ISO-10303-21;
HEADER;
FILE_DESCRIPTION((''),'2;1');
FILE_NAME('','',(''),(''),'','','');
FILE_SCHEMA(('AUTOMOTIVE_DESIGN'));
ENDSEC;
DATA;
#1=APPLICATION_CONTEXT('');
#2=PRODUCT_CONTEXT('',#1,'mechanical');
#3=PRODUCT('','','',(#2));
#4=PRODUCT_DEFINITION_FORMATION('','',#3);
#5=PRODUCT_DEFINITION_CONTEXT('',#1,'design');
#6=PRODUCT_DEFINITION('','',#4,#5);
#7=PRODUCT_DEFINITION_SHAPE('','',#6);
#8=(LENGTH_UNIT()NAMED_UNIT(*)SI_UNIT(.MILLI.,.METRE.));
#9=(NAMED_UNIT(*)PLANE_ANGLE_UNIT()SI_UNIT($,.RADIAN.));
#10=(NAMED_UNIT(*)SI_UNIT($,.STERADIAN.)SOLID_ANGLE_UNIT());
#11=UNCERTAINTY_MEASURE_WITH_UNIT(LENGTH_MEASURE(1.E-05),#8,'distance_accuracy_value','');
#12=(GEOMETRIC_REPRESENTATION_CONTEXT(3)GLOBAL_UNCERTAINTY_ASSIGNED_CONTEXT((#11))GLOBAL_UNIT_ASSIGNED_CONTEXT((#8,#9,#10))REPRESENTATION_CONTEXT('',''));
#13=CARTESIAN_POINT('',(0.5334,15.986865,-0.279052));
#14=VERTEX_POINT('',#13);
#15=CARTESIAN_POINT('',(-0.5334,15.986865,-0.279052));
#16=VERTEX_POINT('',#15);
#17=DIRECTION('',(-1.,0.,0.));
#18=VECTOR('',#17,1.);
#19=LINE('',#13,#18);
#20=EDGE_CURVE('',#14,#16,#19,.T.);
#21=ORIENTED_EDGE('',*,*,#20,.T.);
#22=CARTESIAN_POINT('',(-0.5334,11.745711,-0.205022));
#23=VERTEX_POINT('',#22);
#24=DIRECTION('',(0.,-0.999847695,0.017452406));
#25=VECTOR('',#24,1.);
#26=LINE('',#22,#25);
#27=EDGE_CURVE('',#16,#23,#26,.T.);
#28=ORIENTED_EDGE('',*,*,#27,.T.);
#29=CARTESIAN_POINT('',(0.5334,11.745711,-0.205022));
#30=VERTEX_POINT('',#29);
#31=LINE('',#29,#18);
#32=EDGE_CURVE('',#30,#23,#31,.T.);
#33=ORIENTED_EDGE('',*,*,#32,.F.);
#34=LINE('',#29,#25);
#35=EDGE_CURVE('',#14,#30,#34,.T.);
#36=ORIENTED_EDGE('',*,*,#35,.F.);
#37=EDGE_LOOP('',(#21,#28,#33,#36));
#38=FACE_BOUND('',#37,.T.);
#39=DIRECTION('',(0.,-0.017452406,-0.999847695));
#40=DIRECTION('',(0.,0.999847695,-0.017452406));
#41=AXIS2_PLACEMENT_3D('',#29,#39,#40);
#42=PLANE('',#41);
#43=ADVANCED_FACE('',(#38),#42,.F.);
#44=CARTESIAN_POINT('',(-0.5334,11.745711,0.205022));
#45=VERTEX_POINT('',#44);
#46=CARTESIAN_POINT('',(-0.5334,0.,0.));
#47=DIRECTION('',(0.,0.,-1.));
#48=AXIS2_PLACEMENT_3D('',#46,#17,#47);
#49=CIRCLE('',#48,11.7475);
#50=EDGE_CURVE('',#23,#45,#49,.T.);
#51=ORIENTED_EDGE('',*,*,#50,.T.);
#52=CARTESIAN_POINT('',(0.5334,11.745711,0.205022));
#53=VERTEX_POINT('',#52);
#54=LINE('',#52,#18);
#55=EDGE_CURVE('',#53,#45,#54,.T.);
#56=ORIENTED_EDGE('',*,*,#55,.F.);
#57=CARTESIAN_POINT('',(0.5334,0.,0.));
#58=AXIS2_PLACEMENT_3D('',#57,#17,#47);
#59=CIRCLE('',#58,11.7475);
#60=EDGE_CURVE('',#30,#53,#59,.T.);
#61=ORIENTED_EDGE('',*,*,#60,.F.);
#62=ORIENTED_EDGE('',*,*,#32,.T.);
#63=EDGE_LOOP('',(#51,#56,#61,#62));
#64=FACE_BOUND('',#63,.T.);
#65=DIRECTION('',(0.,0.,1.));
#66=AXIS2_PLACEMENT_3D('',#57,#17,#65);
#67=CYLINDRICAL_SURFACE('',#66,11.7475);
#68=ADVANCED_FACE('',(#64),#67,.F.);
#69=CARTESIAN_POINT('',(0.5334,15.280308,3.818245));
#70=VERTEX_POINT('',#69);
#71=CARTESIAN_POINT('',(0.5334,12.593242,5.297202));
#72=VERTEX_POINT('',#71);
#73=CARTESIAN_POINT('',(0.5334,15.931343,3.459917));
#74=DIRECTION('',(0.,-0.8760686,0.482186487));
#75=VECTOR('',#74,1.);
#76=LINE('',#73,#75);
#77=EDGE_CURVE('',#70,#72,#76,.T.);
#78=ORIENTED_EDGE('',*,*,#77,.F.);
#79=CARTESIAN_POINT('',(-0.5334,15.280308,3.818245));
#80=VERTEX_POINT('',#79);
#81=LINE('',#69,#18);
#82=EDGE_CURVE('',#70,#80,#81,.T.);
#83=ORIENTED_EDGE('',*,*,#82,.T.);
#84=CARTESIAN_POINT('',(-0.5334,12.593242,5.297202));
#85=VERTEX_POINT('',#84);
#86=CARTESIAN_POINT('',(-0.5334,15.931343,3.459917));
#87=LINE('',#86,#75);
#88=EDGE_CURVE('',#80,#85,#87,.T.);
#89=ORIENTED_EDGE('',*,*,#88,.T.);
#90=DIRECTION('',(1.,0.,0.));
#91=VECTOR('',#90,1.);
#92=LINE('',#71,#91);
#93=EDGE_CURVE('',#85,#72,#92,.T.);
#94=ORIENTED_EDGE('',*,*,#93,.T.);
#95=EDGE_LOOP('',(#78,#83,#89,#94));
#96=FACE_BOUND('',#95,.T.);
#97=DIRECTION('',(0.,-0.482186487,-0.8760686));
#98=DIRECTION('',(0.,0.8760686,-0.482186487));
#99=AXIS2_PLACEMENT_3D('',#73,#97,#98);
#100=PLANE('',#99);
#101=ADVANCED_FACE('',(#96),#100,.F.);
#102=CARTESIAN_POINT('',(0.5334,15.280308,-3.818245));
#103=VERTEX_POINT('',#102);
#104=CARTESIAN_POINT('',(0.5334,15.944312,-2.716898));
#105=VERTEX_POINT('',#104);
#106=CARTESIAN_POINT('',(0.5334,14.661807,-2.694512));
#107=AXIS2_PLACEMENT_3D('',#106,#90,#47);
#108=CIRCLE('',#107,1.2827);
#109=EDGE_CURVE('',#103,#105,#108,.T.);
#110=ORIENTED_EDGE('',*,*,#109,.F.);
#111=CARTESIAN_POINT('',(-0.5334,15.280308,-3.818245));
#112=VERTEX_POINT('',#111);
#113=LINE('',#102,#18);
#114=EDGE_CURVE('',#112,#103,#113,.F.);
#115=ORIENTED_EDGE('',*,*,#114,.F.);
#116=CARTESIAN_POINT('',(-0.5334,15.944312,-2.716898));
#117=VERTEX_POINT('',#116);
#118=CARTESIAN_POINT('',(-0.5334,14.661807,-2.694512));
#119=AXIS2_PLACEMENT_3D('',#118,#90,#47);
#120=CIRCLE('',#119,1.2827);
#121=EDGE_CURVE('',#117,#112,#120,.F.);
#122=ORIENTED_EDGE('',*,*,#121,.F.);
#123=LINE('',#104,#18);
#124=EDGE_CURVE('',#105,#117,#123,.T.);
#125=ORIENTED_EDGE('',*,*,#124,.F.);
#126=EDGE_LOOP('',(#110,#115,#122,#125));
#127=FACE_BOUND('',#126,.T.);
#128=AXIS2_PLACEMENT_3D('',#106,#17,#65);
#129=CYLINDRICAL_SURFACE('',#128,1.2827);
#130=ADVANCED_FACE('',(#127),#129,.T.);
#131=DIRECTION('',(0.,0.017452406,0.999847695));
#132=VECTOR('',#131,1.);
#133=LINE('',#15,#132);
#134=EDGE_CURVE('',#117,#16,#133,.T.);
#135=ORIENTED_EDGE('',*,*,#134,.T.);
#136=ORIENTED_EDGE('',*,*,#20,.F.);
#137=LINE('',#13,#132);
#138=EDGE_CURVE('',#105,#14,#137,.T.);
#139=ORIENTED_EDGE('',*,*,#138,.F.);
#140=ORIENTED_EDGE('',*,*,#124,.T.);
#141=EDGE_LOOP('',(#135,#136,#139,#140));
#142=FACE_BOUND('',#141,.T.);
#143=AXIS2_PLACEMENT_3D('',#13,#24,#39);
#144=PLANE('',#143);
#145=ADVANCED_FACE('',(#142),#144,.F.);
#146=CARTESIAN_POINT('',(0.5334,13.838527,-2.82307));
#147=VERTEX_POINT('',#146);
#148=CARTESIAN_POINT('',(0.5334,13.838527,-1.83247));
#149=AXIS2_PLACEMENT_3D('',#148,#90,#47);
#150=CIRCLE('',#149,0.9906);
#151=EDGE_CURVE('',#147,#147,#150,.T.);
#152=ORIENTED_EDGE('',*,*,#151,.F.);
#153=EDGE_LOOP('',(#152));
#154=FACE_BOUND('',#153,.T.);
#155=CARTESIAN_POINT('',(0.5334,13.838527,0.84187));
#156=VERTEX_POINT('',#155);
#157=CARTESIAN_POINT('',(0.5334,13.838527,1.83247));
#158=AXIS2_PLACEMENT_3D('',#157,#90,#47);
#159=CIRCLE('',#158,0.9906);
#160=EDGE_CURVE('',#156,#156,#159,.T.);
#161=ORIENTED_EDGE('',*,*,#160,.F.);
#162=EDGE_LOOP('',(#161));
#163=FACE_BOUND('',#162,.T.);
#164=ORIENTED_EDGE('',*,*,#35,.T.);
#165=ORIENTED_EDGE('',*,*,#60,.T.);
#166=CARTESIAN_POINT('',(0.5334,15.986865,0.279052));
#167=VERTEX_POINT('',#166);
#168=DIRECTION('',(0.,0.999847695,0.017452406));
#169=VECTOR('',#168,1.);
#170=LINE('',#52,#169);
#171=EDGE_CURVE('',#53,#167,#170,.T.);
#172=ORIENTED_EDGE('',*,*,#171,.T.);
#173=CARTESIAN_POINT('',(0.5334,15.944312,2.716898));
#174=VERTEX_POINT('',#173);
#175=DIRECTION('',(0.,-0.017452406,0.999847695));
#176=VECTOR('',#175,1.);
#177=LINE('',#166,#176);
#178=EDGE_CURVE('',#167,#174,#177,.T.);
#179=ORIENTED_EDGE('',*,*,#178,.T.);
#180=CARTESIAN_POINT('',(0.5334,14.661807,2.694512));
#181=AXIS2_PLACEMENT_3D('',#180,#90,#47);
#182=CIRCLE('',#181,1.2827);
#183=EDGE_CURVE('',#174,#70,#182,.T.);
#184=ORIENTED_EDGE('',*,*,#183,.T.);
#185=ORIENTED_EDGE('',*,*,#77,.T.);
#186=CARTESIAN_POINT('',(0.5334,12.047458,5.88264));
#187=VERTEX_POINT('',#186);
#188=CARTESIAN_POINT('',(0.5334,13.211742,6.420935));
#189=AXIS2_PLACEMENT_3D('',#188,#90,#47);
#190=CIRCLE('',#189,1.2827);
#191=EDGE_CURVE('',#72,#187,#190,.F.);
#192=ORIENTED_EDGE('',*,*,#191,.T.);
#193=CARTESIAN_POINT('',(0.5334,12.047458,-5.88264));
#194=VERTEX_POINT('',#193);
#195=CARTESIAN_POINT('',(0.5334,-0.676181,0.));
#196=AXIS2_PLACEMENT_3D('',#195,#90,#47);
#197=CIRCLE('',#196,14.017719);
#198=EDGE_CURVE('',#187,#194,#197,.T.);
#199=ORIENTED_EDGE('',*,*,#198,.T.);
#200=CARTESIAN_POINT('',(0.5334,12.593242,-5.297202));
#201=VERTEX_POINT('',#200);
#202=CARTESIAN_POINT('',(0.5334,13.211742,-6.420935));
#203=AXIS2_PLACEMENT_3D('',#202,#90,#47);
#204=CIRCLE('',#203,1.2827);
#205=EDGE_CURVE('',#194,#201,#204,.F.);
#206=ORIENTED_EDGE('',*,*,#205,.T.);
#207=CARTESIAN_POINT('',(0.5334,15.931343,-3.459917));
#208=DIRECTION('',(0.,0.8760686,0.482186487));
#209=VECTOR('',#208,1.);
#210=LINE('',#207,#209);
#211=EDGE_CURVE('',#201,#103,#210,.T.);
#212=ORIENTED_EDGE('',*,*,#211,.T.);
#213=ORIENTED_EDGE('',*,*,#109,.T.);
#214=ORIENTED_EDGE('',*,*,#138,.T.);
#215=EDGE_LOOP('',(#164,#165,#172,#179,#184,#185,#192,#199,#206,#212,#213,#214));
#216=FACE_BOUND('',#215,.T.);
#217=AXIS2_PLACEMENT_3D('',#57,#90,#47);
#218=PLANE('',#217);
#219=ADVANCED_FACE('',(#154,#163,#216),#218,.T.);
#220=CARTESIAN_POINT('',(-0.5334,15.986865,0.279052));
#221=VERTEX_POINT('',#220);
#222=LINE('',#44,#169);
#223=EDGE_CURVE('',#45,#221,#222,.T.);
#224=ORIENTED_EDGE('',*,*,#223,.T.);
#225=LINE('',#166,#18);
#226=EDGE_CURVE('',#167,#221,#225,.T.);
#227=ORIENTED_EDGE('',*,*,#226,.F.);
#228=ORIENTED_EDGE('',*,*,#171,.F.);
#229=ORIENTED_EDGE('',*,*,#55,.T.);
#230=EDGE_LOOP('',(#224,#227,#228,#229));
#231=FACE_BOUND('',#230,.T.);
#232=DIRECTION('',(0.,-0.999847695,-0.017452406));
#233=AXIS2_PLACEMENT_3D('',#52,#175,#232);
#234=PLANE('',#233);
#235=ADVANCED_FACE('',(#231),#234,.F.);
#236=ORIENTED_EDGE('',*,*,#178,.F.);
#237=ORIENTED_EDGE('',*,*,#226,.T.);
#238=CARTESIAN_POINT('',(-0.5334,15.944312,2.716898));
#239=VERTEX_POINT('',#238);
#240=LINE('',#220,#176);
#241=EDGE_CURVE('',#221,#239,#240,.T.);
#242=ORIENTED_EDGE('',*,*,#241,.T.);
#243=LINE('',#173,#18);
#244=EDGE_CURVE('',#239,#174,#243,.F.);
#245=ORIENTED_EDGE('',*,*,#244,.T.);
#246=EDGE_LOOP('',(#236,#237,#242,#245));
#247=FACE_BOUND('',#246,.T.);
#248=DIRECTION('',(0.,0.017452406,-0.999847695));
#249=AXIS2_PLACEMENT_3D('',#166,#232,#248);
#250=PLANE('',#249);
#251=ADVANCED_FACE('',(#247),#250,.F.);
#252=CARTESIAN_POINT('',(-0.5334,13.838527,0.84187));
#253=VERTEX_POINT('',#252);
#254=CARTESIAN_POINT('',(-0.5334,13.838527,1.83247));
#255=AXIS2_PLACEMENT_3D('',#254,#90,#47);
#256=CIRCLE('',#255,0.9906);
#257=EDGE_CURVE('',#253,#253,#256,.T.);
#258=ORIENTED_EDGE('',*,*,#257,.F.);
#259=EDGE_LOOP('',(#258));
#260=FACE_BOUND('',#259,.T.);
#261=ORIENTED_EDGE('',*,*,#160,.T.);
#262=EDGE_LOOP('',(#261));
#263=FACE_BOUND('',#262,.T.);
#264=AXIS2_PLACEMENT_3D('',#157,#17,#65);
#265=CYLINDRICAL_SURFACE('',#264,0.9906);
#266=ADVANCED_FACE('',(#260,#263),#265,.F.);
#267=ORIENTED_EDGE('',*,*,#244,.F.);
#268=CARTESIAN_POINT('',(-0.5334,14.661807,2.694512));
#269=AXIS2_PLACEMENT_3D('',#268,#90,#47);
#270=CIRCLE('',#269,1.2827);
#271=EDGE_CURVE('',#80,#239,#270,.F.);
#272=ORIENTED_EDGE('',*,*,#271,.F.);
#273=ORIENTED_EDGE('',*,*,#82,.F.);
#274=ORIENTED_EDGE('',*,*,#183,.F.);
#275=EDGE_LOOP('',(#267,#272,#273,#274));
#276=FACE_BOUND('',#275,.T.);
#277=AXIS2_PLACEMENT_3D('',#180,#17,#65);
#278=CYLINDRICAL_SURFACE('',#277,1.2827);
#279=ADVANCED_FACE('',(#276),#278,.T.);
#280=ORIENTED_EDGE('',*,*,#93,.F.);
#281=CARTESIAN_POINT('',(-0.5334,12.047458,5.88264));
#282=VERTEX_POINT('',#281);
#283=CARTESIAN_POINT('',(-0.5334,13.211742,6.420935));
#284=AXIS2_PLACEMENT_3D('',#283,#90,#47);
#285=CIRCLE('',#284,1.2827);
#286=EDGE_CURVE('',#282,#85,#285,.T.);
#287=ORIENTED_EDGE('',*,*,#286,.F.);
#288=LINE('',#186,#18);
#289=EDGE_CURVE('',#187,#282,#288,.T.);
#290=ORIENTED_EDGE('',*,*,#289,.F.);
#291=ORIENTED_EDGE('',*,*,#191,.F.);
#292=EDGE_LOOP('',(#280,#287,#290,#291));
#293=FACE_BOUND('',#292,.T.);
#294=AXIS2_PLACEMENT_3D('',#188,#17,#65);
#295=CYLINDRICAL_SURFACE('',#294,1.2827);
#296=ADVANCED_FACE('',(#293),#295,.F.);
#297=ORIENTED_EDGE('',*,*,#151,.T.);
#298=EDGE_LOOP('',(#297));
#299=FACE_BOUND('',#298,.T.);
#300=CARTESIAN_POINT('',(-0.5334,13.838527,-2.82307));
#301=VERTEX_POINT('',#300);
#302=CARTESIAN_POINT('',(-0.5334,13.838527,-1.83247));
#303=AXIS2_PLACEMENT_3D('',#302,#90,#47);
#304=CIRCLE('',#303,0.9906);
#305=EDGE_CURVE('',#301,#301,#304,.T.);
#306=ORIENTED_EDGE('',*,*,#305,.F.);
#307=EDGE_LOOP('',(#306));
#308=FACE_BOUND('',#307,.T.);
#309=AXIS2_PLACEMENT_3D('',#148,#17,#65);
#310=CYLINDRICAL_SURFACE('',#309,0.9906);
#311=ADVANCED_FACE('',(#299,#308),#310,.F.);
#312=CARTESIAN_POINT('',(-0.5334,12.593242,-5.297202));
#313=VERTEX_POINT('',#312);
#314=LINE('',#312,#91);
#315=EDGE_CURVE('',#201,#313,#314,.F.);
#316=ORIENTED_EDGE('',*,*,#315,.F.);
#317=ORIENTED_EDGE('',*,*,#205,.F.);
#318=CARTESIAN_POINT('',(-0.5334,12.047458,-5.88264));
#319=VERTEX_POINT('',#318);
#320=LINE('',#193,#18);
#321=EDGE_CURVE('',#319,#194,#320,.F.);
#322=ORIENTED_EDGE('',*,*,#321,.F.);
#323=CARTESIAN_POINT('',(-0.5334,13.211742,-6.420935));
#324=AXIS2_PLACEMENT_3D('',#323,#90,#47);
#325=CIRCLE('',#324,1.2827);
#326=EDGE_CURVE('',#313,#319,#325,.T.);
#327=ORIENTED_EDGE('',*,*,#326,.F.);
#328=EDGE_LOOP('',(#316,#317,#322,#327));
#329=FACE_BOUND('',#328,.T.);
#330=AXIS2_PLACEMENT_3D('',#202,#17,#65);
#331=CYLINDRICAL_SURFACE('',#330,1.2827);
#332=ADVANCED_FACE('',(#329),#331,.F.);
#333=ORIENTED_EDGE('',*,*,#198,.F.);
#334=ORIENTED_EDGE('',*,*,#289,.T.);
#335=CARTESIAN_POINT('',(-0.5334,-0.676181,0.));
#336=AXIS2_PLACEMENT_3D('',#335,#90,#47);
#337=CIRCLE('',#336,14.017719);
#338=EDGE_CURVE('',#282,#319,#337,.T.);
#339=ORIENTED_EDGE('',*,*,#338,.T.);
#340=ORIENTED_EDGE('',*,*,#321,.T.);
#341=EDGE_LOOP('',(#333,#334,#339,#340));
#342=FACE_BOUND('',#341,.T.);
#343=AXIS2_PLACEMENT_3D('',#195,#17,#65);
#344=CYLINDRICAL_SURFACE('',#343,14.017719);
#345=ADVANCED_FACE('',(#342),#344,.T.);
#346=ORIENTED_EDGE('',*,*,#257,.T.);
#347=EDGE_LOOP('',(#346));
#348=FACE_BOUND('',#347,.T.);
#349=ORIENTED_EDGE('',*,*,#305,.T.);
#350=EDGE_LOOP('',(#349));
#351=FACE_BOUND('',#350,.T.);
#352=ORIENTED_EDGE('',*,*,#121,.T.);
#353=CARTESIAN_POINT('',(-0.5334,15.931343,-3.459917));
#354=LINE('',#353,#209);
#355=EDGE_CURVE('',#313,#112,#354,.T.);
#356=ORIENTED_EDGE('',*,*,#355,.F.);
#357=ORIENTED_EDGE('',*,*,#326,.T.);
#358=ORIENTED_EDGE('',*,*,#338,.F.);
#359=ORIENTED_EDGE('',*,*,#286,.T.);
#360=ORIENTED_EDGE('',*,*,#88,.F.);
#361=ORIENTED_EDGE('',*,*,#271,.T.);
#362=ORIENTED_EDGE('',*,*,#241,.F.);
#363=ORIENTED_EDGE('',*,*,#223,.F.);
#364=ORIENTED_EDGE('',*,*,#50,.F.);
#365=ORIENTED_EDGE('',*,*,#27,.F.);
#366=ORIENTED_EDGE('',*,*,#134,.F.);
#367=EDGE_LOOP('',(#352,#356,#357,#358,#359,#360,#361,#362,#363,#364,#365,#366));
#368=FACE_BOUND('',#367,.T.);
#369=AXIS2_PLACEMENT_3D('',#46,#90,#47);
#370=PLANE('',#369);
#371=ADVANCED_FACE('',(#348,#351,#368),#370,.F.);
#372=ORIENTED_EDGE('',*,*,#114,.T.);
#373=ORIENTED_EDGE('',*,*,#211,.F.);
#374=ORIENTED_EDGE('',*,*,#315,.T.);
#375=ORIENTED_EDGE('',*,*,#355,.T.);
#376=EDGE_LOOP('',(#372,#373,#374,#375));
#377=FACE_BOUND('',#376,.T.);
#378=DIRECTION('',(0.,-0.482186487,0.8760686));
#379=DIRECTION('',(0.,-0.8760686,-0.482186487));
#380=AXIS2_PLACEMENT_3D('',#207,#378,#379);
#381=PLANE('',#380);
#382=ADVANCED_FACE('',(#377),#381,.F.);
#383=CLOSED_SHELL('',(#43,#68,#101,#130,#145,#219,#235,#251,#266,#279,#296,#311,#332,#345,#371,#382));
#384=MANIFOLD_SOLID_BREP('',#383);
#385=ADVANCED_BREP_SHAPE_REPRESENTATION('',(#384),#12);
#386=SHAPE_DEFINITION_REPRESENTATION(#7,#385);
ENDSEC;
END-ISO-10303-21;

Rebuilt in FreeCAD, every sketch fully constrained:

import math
import FreeCAD as App
import Part
import Sketcher
Q = App.Units.Quantity


def edges_at(feature, points):
    """Names of the edges that pass closest to the given points."""
    edges = feature.Shape.Edges
    near = lambda p: min(range(len(edges)), key=lambda i: edges[i].distToShape(Part.Vertex(*p))[0])
    return sorted({f"Edge{near(p) + 1}" for p in points})

doc = App.newDocument("Part")
body = doc.addObject("PartDesign::Body", "Body")

sketch1 = doc.addObject("Sketcher::SketchObject", "Sketch")
body.addObject(sketch1)
sketch1.AttachmentSupport = (doc.YZ_Plane, [""])
sketch1.MapMode = "FlatFace"
sketch1.addGeometry(Part.LineSegment(App.Vector(11.75, 0.21, 0), App.Vector(15.99, 0.28, 0)), False)
sketch1.addGeometry(Part.LineSegment(App.Vector(15.99, 0.28, 0), App.Vector(15.93, 3.46, 0)), False)
sketch1.addGeometry(Part.LineSegment(App.Vector(15.93, 3.46, 0), App.Vector(12.22, 5.51, 0)), False)
sketch1.addGeometry(Part.ArcOfCircle(Part.Circle(App.Vector(-0.68, 0, 0), App.Vector(0, 0, 1), 14.02), math.radians(23), math.radians(337)), False)
sketch1.addGeometry(Part.LineSegment(App.Vector(12.22, -5.51, 0), App.Vector(15.93, -3.46, 0)), False)
sketch1.addGeometry(Part.LineSegment(App.Vector(15.93, -3.46, 0), App.Vector(15.99, -0.28, 0)), False)
sketch1.addGeometry(Part.LineSegment(App.Vector(15.99, -0.28, 0), App.Vector(11.75, -0.21, 0)), False)
sketch1.addGeometry(Part.ArcOfCircle(Part.Circle(App.Vector(0, 0, 0), App.Vector(0, 0, 1), 11.75), math.radians(1), math.radians(359)), False)
sketch1.addGeometry(Part.Circle(App.Vector(13.84, 1.83, 0), App.Vector(0, 0, 1), 0.99), False)
sketch1.addGeometry(Part.Circle(App.Vector(13.84, -1.83, 0), App.Vector(0, 0, 1), 0.99), False)
sketch1.addConstraint(Sketcher.Constraint("Coincident", 0, 2, 1, 1))
sketch1.addConstraint(Sketcher.Constraint("Coincident", 1, 2, 2, 1))
sketch1.addConstraint(Sketcher.Constraint("Coincident", 2, 2, 3, 1))
sketch1.addConstraint(Sketcher.Constraint("Coincident", 3, 2, 4, 1))
sketch1.addConstraint(Sketcher.Constraint("Coincident", 4, 2, 5, 1))
sketch1.addConstraint(Sketcher.Constraint("Coincident", 5, 2, 6, 1))
sketch1.addConstraint(Sketcher.Constraint("Coincident", 6, 2, 7, 2))
sketch1.addConstraint(Sketcher.Constraint("Coincident", 7, 1, 0, 1))
sketch1.addConstraint(Sketcher.Constraint("Coincident", 7, 3, -1, 1))
sketch1.addConstraint(Sketcher.Constraint("Equal", 8, 9))
sketch1.addConstraint(Sketcher.Constraint("Symmetric", 8, 3, 9, 3, -1))
sketch1.addConstraint(Sketcher.Constraint("Symmetric", 2, 2, 3, 2, -1))
sketch1.addConstraint(Sketcher.Constraint("Symmetric", 1, 2, 4, 2, -1))
sketch1.addConstraint(Sketcher.Constraint("Symmetric", 0, 2, 5, 2, -1))
sketch1.addConstraint(Sketcher.Constraint("Perpendicular", 0, 1))
sketch1.addConstraint(Sketcher.Constraint("Perpendicular", 5, 6))
sketch1.addConstraint(Sketcher.Constraint("Equal", 0, 2))
sketch1.addConstraint(Sketcher.Constraint("Diameter", 8, Q("0.078 in")))
sketch1.addConstraint(Sketcher.Constraint("Angle", 0, Q("1 deg")))
sketch1.addConstraint(Sketcher.Constraint("Radius", 7, Q("0.4625 in")))
sketch1.addConstraint(Sketcher.Constraint("Distance", 0, Q("0.167 in")))
sketch1.addConstraint(Sketcher.Constraint("Radius", 3, 14.017719))
sketch1.addConstraint(Sketcher.Constraint("Distance", 1, 3.18135))
sketch1.addConstraint(Sketcher.Constraint("DistanceX", 3, 3, -1, 1, 0.676181))
sketch1.addConstraint(Sketcher.Constraint("DistanceY", -1, 1, 8, 3, 1.83247))
sketch1.addConstraint(Sketcher.Constraint("DistanceY", -1, 1, 0, 2, 0.279052))
sketch1.addConstraint(Sketcher.Constraint("DistanceX", 8, 3, 0, 2, 2.148338))
pad1 = doc.addObject("PartDesign::Pad", "Pad")
body.addObject(pad1)
pad1.Profile = sketch1
pad1.Length = Q("0.042 in")
pad1.Midplane = True
doc.recompute()

fillet = doc.addObject("PartDesign::Fillet", "Fillet")
body.addObject(fillet)
fillet.Base = (pad1, edges_at(pad1, [
    (0, 15.931, -3.46),
    (0, 12.215, -5.505),
    (0, 12.215, 5.505),
    (0, 15.931, 3.46),
]))
fillet.Radius = Q("0.0505 in")

doc.recompute()
